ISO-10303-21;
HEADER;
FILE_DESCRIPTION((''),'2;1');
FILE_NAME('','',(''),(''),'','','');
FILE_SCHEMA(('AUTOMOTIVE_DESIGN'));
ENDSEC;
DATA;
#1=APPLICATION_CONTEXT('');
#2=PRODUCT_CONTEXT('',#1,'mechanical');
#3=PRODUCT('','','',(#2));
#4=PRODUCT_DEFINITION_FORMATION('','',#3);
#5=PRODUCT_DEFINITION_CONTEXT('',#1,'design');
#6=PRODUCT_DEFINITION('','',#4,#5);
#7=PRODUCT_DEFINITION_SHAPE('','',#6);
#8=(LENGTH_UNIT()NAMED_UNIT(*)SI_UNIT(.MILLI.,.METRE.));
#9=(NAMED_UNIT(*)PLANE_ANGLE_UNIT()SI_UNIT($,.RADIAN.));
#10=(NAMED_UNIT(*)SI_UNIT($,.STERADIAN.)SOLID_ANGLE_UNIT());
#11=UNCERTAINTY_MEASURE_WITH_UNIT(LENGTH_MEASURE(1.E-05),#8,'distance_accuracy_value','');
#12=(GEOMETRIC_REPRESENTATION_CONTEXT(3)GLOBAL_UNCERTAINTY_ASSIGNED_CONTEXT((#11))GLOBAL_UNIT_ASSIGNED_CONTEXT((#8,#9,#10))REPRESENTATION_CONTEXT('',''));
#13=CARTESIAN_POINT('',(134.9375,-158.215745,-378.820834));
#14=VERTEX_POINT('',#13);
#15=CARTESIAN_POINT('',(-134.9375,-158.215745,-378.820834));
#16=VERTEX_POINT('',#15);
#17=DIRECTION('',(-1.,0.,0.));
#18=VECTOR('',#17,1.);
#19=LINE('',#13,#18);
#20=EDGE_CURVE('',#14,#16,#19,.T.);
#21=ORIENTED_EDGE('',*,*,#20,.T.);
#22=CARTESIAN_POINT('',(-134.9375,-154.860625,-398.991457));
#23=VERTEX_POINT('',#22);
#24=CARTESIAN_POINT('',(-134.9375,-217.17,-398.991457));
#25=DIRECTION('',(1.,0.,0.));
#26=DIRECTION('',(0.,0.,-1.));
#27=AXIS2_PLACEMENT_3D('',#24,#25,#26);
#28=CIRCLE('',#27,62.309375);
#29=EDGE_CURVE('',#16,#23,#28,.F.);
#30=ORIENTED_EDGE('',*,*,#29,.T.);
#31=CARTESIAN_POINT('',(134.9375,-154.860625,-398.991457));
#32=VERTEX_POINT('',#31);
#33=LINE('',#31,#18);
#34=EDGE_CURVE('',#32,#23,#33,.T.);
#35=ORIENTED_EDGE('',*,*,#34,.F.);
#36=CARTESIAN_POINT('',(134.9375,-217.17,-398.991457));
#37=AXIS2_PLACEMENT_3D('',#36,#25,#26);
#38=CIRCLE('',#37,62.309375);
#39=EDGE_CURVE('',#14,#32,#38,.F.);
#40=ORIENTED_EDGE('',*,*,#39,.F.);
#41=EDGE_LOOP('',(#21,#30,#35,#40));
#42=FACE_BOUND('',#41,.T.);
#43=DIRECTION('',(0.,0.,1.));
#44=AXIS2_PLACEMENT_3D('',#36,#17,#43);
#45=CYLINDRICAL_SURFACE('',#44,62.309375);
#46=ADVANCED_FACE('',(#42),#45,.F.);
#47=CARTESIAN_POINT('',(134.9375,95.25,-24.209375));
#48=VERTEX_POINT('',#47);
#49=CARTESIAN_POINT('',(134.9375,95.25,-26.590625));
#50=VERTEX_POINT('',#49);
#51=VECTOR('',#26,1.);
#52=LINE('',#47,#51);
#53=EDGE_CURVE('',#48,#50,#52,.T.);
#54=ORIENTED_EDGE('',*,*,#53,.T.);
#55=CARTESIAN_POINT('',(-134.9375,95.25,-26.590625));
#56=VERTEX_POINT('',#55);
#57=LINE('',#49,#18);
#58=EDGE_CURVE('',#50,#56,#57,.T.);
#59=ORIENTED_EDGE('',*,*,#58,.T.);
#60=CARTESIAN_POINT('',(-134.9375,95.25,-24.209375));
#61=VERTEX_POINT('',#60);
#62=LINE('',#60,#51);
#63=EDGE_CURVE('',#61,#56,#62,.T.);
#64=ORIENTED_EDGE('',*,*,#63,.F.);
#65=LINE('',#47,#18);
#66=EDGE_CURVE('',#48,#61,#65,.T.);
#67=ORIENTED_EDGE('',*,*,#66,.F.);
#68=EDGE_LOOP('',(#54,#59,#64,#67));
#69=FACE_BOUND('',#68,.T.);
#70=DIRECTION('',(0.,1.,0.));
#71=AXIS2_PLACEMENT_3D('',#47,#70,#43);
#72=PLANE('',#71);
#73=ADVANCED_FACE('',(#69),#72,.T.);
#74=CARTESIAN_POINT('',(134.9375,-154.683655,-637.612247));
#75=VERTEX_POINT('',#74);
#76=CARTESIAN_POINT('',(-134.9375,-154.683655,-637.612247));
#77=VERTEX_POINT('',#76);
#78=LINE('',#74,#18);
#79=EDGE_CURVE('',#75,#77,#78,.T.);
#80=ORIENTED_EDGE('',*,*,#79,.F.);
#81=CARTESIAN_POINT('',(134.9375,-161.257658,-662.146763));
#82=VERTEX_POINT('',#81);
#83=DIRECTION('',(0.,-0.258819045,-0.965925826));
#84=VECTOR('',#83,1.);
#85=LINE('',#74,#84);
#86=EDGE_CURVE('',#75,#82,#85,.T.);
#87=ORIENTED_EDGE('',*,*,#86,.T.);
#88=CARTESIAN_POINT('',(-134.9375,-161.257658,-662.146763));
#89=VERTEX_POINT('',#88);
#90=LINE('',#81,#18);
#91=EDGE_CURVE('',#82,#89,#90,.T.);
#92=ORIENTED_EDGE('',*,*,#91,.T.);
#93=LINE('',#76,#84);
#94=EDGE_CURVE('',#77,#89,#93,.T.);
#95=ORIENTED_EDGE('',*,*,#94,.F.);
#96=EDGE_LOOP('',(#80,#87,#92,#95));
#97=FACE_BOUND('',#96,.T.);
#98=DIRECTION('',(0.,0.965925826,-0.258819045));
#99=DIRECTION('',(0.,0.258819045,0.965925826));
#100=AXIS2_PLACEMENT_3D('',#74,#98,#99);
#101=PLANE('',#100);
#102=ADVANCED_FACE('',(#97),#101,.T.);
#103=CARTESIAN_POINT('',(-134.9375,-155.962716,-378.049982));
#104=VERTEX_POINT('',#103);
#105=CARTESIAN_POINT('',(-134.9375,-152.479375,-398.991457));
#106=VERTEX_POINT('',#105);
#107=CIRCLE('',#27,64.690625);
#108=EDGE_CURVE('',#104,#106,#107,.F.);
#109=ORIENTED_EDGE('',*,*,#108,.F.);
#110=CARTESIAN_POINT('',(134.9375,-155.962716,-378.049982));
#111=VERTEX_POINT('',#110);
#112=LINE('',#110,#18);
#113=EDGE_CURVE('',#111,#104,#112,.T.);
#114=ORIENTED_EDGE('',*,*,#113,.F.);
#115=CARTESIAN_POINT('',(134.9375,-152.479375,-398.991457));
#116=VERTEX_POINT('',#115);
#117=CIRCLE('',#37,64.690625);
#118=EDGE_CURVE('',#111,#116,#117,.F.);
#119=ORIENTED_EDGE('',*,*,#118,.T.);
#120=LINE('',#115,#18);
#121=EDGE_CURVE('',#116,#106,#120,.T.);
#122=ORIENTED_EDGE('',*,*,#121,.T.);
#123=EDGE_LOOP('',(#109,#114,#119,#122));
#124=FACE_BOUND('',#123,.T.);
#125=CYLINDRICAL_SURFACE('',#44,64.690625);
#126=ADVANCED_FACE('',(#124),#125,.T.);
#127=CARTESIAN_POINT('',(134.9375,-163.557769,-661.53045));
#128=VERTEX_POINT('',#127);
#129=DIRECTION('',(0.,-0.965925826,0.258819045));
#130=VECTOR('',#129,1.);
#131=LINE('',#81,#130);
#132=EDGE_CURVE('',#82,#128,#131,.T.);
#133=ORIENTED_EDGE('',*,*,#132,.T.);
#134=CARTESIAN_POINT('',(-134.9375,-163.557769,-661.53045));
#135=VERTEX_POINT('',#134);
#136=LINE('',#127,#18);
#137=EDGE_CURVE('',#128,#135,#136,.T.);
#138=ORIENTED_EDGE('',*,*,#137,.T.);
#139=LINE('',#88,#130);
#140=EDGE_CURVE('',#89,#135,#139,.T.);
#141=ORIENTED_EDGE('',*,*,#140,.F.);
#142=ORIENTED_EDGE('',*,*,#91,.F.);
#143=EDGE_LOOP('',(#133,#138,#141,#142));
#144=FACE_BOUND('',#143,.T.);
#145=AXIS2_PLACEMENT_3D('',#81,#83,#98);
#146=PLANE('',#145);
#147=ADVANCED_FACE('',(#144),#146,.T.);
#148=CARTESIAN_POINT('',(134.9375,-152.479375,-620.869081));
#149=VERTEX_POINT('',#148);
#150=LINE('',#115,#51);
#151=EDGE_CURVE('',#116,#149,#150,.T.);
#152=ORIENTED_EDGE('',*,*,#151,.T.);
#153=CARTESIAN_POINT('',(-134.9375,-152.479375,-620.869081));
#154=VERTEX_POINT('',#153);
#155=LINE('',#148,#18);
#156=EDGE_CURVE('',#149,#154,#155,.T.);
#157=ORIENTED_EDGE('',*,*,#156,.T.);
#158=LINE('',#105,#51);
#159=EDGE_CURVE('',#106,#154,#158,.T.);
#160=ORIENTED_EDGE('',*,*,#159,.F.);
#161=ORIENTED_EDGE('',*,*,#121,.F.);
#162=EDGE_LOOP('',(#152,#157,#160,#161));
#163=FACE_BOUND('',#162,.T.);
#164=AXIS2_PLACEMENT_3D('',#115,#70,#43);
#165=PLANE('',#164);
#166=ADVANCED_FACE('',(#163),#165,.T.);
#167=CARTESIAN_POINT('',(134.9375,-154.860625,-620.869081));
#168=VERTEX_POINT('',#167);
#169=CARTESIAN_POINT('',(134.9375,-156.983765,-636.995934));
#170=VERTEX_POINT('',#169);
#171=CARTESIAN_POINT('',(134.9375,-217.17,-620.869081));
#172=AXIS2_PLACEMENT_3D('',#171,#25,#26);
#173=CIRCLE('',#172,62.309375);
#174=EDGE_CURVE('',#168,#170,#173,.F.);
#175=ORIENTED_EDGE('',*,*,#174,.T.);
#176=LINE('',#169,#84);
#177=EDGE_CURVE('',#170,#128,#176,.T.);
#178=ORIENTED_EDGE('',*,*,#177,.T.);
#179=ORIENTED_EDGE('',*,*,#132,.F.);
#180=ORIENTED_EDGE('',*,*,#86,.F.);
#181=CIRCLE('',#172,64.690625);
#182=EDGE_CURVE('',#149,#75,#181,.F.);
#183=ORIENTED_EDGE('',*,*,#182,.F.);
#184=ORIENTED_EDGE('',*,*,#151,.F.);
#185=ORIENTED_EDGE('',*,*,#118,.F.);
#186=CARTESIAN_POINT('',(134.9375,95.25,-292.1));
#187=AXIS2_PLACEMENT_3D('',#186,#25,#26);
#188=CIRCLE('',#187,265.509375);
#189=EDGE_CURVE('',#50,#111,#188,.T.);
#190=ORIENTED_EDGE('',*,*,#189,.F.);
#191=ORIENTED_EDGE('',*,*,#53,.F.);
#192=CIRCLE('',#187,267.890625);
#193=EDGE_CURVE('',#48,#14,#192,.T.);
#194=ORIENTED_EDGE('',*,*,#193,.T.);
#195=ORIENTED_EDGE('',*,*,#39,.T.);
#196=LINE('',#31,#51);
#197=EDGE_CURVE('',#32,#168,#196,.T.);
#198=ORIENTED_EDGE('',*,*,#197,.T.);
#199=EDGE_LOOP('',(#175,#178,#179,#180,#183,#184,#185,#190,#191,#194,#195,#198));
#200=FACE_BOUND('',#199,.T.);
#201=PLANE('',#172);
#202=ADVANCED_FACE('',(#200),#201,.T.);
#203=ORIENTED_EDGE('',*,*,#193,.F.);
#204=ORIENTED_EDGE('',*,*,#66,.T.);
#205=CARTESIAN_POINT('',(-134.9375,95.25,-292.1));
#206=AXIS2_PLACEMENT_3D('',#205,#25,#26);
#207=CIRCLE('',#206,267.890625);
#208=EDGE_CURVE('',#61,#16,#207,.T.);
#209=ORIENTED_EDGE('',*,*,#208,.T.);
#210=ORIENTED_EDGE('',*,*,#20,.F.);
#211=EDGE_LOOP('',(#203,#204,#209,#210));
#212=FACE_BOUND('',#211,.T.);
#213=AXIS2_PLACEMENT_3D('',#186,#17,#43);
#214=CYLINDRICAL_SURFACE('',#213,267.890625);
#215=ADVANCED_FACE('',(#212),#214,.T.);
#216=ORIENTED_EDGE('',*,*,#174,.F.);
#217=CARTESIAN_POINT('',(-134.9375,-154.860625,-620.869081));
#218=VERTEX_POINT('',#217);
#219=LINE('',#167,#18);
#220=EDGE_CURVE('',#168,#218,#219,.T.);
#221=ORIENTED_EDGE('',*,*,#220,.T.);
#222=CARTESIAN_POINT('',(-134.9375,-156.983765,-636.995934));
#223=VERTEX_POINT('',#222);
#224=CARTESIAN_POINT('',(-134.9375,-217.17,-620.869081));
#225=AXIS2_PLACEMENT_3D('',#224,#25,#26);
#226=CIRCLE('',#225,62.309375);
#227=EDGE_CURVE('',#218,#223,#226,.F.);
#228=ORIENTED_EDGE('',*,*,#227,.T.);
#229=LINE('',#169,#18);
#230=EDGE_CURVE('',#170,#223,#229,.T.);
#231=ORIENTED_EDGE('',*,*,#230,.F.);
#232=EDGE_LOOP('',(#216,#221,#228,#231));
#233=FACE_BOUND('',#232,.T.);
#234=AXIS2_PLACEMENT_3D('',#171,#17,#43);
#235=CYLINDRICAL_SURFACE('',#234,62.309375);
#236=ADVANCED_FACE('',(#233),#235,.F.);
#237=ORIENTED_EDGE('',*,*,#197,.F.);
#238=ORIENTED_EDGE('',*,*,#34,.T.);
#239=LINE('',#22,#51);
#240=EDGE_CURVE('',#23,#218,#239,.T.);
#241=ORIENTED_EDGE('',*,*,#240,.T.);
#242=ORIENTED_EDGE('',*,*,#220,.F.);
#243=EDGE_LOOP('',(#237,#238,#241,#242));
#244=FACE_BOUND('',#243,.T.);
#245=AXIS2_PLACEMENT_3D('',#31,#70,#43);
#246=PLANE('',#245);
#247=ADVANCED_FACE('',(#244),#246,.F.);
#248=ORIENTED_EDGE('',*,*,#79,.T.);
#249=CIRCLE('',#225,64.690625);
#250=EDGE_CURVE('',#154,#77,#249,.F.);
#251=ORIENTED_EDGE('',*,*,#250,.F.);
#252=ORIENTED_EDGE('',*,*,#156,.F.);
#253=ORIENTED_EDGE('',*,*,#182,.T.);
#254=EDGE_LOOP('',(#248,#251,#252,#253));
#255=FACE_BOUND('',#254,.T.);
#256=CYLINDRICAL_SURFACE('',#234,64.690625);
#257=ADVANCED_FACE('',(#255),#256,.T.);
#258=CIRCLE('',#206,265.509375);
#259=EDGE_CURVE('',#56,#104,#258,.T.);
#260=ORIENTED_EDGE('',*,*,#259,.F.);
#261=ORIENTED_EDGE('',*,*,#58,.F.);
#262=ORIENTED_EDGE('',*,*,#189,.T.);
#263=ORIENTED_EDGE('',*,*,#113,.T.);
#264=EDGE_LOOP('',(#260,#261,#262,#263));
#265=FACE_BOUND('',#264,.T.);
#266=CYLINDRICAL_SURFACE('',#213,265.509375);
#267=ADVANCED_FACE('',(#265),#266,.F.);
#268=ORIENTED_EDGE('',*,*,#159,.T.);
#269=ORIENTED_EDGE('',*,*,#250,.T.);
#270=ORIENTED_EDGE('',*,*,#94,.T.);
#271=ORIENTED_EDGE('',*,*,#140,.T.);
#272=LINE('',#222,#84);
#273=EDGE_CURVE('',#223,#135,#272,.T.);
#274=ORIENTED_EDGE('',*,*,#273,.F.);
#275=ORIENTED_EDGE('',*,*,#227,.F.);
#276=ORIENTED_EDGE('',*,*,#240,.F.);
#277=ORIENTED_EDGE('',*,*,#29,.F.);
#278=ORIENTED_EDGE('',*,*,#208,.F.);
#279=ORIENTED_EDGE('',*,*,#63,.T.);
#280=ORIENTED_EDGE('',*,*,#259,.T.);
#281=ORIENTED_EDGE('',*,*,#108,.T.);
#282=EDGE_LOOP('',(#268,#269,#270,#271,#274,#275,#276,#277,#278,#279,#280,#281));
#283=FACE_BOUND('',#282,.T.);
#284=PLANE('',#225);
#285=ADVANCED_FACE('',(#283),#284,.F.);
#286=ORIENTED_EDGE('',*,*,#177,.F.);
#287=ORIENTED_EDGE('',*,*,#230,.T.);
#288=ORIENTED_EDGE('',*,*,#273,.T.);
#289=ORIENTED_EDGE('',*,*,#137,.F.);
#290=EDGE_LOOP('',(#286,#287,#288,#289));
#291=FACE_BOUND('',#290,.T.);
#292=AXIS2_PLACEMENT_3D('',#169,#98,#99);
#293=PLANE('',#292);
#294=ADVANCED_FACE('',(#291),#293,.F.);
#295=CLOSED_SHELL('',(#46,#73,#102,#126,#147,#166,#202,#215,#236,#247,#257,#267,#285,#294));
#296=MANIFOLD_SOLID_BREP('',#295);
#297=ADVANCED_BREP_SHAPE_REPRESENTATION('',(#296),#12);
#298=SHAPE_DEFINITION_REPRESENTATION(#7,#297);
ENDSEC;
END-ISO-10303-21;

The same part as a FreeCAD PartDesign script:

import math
import FreeCAD as App
import Part
import Sketcher
from FreeCAD import Vector
Q = App.Units.Quantity

doc = App.newDocument("Part")
body = doc.addObject("PartDesign::Body", "Body")

sketch1 = doc.addObject("Sketcher::SketchObject", "Sketch")
body.addObject(sketch1)
sketch1.AttachmentSupport = (doc.YZ_Plane, [""])
sketch1.MapMode = "FlatFace"
sketch1.addGeometry(Part.ArcOfCircle(Part.Circle(Vector(95.3, -292.1, 0), Vector(0, 0, 1), 267.9), math.radians(90), math.radians(199)), False)
sketch1.addGeometry(Part.ArcOfCircle(Part.Circle(Vector(-217.2, -399, 0), Vector(0, 0, 1), 62.3), math.radians(0), math.radians(18.89)), False)
sketch1.addGeometry(Part.LineSegment(Vector(-154.9, -399, 0), Vector(-154.9, -620.9, 0)), False)
sketch1.addGeometry(Part.ArcOfCircle(Part.Circle(Vector(-217.2, -620.9, 0), Vector(0, 0, 1), 62.3), math.radians(-15), math.radians(0)), False)
sketch1.addGeometry(Part.LineSegment(Vector(-157, -637, 0), Vector(-163.6, -661.5, 0)), False)
sketch1.addGeometry(Part.LineSegment(Vector(-163.6, -661.5, 0), Vector(-161.3, -662.1, 0)), False)
sketch1.addGeometry(Part.LineSegment(Vector(-161.3, -662.1, 0), Vector(-154.7, -637.6, 0)), False)
sketch1.addGeometry(Part.ArcOfCircle(Part.Circle(Vector(-217.2, -620.9, 0), Vector(0, 0, 1), 64.7), math.radians(-15), math.radians(0)), False)
sketch1.addGeometry(Part.LineSegment(Vector(-152.5, -620.9, 0), Vector(-152.5, -399, 0)), False)
sketch1.addGeometry(Part.ArcOfCircle(Part.Circle(Vector(-217.2, -399, 0), Vector(0, 0, 1), 64.7), math.radians(0), math.radians(18.89)), False)
sketch1.addGeometry(Part.ArcOfCircle(Part.Circle(Vector(95.2, -292.1, 0), Vector(0, 0, 1), 265.5), math.radians(90), math.radians(199)), False)
sketch1.addGeometry(Part.LineSegment(Vector(95.2, -26.6, 0), Vector(95.2, -24.2, 0)), False)
sketch1.addConstraint(Sketcher.Constraint("Tangent", 0, 2, 1, 2))
sketch1.addConstraint(Sketcher.Constraint("Tangent", 1, 1, 2, 1))
sketch1.addConstraint(Sketcher.Constraint("Tangent", 2, 2, 3, 2))
sketch1.addConstraint(Sketcher.Constraint("Tangent", 3, 1, 4, 1))
sketch1.addConstraint(Sketcher.Constraint("Coincident", 4, 2, 5, 1))
sketch1.addConstraint(Sketcher.Constraint("Coincident", 5, 2, 6, 1))
sketch1.addConstraint(Sketcher.Constraint("Tangent", 6, 2, 7, 1))
sketch1.addConstraint(Sketcher.Constraint("Tangent", 7, 2, 8, 1))
sketch1.addConstraint(Sketcher.Constraint("Tangent", 8, 2, 9, 1))
sketch1.addConstraint(Sketcher.Constraint("Tangent", 9, 2, 10, 2))
sketch1.addConstraint(Sketcher.Constraint("Coincident", 10, 1, 11, 1))
sketch1.addConstraint(Sketcher.Constraint("Coincident", 11, 2, 0, 1))
sketch1.addConstraint(Sketcher.Constraint("Vertical", 2))
sketch1.addConstraint(Sketcher.Constraint("Vertical", 8))
sketch1.addConstraint(Sketcher.Constraint("Vertical", 11))
sketch1.addConstraint(Sketcher.Constraint("Coincident", 7, 3, 3, 3))
sketch1.addConstraint(Sketcher.Constraint("Coincident", 9, 3, 1, 3))
sketch1.addConstraint(Sketcher.Constraint("Coincident", 10, 3, 0, 3))
sketch1.addConstraint(Sketcher.Constraint("Equal", 1, 3))
sketch1.addConstraint(Sketcher.Constraint("Perpendicular", 4, 5))
sketch1.addConstraint(Sketcher.Constraint("Perpendicular", 5, 6))
sketch1.addConstraint(Sketcher.Constraint("Vertical", 0, 3, 10, 1))
sketch1.addConstraint(Sketcher.Constraint("Distance", 4, Q("1 in")))
sketch1.addConstraint(Sketcher.Constraint("Angle", 4, Q("-105 deg")))
sketch1.addConstraint(Sketcher.Constraint("Radius", 0, Q("10.546875 in")))
sketch1.addConstraint(Sketcher.Constraint("Radius", 1, Q("2.453125 in")))
sketch1.addConstraint(Sketcher.Constraint("Radius", 7, Q("2.546875 in")))
sketch1.addConstraint(Sketcher.Constraint("DistanceY", 0, 3, -1, 1, Q("11.5 in")))
sketch1.addConstraint(Sketcher.Constraint("DistanceX", 1, 3, 0, 3, Q("12.3 in")))
sketch1.addConstraint(Sketcher.Constraint("DistanceX", -1, 1, 0, 3, Q("3.75 in")))
sketch1.addConstraint(Sketcher.Constraint("DistanceY", 2, 2, 2, 1, 221.877624))
pad1 = doc.addObject("PartDesign::Pad", "Pad")
body.addObject(pad1)
pad1.Profile = sketch1
pad1.Length = Q("10.625 in")
pad1.Midplane = True

doc.recompute()
